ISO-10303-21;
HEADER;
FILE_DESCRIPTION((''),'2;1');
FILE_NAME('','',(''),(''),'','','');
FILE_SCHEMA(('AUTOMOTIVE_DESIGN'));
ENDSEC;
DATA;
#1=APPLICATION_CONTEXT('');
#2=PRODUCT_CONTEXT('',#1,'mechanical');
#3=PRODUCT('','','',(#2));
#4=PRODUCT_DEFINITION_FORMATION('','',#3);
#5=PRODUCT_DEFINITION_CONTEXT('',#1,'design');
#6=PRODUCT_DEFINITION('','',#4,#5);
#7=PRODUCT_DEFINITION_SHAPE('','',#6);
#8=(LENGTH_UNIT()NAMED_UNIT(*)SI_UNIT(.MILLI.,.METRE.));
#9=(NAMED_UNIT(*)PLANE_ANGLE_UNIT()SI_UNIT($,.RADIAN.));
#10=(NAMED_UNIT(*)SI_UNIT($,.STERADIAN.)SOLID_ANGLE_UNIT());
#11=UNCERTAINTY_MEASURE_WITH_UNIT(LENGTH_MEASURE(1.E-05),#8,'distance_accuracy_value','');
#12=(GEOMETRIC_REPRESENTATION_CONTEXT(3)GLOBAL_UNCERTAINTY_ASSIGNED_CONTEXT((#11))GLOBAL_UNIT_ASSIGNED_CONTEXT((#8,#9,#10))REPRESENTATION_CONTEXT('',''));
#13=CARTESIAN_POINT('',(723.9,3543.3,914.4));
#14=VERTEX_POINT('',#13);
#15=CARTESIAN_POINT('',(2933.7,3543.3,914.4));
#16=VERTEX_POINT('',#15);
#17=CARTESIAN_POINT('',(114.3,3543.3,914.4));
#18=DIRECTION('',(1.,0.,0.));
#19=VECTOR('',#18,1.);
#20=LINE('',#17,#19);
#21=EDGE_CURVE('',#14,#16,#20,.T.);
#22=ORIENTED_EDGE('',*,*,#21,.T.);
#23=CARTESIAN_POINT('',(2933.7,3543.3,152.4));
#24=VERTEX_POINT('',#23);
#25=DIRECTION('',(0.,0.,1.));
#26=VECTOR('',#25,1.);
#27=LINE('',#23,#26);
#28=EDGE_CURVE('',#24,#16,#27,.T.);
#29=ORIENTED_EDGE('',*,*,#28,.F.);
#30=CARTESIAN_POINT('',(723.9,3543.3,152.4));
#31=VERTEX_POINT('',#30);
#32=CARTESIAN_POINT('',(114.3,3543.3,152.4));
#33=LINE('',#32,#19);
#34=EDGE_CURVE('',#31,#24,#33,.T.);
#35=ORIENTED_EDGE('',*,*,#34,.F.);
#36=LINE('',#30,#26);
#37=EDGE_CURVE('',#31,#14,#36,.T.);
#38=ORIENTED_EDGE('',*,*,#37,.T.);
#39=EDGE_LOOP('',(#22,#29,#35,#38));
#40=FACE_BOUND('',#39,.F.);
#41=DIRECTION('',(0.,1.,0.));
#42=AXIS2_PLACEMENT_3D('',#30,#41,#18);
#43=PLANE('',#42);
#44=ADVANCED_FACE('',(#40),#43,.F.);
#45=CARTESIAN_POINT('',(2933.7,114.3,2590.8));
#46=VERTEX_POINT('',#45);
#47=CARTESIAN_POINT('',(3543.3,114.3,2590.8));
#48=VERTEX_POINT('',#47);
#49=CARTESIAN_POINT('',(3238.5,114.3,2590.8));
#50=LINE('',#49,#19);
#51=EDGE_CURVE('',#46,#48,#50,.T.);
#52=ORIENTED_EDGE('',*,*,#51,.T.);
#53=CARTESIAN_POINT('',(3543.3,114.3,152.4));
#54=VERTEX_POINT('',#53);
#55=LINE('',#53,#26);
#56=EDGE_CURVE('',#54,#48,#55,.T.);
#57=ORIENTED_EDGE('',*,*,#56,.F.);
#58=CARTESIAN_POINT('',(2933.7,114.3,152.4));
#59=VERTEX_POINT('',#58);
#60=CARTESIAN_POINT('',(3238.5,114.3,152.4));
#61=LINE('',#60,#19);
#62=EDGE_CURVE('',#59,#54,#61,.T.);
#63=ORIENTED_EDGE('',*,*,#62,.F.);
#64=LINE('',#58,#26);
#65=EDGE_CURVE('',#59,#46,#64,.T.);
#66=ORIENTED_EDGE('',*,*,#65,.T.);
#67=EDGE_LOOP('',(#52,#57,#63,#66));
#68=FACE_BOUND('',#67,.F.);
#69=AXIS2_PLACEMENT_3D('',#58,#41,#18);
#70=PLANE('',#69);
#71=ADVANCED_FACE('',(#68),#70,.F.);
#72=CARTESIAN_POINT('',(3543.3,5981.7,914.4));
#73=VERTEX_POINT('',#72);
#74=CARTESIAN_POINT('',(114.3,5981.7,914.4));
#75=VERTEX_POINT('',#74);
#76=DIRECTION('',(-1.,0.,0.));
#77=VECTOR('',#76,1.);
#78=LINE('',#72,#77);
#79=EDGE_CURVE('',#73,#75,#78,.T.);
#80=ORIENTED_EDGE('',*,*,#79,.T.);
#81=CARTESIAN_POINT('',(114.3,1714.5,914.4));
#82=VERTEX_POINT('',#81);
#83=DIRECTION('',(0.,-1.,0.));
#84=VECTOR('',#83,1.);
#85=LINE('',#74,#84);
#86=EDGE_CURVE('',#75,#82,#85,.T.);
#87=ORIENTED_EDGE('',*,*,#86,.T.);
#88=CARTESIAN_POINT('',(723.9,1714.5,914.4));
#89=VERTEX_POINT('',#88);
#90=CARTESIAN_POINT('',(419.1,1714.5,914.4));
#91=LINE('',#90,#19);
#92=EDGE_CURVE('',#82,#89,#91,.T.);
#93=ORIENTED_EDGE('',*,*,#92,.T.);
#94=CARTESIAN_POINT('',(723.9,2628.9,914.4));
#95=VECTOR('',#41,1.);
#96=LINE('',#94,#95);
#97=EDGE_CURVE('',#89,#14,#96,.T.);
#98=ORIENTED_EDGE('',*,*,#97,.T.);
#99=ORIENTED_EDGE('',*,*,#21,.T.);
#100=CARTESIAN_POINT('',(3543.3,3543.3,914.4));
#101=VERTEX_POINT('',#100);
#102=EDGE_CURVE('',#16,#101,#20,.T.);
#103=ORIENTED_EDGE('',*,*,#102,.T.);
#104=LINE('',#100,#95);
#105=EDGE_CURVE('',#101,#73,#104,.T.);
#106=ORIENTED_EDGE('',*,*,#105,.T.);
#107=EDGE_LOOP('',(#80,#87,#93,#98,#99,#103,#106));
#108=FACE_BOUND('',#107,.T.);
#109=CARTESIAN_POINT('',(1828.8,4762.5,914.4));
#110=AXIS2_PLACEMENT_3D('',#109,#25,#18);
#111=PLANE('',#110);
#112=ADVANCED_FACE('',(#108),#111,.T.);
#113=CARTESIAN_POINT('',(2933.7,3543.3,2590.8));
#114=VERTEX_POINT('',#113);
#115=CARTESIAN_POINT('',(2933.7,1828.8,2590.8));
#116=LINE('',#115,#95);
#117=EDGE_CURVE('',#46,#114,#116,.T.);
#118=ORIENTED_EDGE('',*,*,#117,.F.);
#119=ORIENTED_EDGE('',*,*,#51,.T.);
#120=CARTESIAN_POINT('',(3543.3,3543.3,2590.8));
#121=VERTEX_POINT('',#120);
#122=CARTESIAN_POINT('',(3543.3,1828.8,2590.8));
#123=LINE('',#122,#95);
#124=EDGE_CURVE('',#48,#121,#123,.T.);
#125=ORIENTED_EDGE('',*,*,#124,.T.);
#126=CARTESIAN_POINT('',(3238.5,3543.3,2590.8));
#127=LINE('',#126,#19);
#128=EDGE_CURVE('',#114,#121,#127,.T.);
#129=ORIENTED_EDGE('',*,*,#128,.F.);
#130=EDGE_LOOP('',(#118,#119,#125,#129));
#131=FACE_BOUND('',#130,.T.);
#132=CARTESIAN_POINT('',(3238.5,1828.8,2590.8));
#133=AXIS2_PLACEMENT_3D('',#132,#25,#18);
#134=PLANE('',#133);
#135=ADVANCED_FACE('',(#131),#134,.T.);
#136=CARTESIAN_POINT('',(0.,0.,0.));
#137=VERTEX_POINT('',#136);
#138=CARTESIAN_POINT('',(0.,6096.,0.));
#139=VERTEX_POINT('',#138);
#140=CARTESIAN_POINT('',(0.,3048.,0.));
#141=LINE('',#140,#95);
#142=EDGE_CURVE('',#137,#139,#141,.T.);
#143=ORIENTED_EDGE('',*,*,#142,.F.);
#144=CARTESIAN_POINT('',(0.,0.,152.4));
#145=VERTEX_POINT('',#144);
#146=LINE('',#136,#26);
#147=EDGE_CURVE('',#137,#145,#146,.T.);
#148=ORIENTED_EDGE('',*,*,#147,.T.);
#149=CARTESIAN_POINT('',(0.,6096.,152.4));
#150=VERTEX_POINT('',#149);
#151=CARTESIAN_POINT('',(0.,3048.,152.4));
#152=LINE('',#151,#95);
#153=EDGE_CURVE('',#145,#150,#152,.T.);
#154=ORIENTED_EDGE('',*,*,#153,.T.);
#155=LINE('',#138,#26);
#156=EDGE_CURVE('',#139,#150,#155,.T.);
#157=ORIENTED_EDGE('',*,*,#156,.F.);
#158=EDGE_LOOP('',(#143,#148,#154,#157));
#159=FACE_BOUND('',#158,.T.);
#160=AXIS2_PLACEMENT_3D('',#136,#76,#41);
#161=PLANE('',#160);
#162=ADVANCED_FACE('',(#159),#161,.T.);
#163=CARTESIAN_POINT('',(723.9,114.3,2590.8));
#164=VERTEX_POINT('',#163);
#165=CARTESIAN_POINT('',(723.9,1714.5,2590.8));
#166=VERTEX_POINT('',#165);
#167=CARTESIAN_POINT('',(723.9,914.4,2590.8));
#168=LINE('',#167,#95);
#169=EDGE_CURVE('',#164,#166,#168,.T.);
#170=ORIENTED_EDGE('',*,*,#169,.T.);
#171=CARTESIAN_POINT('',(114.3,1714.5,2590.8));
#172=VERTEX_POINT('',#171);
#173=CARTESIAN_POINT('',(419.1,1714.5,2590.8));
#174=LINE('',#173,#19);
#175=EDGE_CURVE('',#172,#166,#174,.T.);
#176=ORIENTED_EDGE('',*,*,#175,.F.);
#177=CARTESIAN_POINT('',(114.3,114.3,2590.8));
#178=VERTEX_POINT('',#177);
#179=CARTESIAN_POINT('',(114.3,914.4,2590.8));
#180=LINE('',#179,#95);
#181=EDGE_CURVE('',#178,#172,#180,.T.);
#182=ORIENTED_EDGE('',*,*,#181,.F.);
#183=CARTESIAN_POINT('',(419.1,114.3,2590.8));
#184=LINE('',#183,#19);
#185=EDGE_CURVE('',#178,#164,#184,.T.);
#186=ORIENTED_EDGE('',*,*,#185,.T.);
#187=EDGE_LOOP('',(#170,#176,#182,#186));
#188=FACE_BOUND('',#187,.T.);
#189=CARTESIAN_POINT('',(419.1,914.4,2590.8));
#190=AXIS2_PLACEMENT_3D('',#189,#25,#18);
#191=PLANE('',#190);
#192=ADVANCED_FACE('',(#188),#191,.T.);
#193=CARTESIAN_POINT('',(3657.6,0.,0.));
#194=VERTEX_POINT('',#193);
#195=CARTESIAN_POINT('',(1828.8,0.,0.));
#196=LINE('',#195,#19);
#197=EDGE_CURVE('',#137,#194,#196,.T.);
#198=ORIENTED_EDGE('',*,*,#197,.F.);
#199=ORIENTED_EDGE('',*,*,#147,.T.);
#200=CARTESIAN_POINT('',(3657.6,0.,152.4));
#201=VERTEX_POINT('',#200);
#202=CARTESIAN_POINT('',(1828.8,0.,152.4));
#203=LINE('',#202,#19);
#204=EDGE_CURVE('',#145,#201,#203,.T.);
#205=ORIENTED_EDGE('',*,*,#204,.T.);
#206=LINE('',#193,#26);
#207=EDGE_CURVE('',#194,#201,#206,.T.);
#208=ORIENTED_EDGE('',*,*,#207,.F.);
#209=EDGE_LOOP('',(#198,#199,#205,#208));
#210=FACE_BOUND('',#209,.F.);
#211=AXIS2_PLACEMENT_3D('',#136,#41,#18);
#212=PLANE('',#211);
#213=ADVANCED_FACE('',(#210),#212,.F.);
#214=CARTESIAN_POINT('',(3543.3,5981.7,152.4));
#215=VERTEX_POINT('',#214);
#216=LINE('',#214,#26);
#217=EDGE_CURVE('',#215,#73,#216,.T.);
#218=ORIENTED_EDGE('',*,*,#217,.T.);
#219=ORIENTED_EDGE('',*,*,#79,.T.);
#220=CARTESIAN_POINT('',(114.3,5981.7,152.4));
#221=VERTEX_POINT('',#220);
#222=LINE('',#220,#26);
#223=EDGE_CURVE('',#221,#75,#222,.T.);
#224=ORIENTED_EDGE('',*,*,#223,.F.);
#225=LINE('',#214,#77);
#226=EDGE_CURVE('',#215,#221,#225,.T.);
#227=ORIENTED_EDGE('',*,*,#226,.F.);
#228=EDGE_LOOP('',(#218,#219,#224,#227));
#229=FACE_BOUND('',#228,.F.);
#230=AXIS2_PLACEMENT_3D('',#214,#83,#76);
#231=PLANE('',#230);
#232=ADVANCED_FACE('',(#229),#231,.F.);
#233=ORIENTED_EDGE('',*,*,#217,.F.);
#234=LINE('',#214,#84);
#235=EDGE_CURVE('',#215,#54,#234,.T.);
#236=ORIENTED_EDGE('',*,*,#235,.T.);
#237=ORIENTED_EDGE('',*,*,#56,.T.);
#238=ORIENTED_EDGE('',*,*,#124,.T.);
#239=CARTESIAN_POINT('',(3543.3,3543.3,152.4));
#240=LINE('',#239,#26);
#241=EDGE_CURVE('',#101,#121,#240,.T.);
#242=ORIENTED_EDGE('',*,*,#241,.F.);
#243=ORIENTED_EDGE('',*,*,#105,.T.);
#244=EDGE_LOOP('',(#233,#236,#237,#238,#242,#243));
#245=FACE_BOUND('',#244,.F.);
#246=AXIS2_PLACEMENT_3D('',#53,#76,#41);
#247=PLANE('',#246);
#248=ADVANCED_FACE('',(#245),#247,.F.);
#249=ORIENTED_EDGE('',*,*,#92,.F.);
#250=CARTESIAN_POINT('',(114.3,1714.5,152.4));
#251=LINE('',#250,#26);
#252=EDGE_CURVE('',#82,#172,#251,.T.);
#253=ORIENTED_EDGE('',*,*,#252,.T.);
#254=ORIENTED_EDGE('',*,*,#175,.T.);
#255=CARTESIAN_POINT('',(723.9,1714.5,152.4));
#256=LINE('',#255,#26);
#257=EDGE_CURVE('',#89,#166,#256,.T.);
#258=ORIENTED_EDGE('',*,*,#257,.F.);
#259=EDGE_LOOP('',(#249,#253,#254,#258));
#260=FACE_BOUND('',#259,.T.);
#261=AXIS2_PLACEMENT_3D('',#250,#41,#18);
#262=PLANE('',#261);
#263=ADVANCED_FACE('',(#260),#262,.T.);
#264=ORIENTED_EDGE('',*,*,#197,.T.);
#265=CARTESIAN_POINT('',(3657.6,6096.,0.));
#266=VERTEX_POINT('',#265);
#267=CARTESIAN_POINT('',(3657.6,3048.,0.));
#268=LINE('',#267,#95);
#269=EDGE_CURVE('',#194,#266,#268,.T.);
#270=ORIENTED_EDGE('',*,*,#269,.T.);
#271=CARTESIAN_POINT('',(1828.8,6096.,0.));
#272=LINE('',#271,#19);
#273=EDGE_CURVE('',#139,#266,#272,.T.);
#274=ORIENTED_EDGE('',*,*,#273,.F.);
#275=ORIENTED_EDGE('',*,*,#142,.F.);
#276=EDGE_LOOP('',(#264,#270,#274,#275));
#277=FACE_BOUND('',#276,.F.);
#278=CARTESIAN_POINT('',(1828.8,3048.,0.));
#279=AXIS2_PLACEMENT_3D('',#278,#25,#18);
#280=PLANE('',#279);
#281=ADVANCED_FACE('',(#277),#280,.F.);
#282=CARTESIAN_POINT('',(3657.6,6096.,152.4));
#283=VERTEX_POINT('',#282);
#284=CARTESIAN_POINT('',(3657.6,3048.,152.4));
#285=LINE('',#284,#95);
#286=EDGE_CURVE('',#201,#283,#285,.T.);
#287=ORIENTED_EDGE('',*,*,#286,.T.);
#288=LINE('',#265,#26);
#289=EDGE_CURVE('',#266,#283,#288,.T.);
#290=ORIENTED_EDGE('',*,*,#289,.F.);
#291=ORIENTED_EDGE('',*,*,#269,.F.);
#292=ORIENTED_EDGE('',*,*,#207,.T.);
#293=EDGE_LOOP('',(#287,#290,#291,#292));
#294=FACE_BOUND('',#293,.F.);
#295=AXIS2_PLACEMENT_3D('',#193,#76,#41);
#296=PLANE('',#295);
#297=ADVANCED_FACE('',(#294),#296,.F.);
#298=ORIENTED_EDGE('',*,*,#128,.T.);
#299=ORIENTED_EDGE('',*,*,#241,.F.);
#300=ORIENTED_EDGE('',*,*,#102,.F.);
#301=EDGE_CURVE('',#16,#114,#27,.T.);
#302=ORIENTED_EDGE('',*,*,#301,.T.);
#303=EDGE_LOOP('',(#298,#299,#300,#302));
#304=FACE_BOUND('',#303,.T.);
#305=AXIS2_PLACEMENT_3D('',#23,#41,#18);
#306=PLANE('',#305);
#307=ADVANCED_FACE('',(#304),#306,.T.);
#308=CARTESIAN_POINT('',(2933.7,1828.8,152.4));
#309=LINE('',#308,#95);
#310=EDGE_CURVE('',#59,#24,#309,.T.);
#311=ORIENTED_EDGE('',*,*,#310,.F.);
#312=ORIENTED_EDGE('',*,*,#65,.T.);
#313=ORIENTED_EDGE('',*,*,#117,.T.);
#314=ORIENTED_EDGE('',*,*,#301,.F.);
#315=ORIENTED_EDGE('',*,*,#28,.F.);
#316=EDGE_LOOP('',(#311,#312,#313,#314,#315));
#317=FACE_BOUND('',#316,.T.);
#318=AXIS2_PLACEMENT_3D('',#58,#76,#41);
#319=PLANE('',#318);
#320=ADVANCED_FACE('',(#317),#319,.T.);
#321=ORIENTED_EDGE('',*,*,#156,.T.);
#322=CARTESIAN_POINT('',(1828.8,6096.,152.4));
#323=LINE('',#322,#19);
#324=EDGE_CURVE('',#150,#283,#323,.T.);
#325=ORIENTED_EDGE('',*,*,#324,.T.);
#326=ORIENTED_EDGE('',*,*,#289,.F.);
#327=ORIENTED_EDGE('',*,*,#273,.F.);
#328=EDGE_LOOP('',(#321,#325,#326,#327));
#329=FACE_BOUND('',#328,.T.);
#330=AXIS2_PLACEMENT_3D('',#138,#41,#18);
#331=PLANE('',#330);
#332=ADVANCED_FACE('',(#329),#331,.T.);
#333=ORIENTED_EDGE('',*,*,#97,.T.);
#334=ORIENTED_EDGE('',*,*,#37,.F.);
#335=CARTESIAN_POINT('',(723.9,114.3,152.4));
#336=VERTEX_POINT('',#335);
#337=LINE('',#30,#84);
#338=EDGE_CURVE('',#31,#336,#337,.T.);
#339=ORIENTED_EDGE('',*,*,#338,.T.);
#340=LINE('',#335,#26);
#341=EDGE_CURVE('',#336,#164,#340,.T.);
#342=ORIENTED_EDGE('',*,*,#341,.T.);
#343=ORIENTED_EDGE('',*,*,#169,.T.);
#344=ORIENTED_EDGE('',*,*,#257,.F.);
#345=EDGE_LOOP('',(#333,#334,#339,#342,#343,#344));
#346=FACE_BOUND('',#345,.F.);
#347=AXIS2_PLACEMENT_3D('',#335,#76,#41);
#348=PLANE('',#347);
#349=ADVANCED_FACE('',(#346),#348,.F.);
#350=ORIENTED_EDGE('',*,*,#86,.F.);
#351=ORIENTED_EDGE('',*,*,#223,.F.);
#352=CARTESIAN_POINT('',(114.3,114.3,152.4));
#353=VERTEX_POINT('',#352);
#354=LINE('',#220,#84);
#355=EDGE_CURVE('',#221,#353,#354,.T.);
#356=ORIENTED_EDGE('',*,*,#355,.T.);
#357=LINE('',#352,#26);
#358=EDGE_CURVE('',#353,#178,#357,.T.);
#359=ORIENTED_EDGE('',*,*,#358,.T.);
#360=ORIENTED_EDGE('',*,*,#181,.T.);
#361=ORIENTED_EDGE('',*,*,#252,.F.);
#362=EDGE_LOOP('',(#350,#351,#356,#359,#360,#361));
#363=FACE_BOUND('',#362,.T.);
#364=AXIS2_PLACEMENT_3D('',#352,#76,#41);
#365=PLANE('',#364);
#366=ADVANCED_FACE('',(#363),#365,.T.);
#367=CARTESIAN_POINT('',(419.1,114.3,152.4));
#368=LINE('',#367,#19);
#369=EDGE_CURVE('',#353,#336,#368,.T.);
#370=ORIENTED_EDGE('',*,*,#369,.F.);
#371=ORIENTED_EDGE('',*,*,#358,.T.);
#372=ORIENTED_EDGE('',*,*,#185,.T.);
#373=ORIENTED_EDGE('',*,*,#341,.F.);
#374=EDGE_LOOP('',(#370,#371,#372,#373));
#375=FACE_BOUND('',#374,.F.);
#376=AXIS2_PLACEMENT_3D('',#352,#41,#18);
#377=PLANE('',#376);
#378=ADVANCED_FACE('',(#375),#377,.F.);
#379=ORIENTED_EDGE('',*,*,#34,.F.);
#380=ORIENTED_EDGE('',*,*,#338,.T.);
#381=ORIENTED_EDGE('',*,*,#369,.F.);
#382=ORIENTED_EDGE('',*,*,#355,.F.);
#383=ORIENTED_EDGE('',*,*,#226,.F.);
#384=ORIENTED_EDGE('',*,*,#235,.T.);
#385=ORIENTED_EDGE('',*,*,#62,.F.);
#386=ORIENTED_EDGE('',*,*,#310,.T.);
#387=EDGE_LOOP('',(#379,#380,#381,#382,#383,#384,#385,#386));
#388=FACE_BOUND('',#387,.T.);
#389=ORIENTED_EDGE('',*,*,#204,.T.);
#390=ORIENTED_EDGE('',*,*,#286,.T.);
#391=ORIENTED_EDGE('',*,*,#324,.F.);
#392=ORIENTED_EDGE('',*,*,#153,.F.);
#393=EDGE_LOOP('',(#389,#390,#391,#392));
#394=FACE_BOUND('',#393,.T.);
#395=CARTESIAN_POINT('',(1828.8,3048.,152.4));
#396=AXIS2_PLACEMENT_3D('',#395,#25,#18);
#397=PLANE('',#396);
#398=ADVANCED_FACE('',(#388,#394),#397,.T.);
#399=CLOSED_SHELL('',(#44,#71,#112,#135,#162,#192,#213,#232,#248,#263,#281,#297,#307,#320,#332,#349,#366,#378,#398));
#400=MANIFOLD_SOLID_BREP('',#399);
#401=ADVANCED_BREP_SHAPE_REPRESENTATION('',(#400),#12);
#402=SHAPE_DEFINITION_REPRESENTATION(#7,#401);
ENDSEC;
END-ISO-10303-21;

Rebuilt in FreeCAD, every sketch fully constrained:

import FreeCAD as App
import Part
import Sketcher
from FreeCAD import Vector
Q = App.Units.Quantity


def add_polygon(sketch, points):
    """Adds a closed chain of lines whose ends are joined by coincident constraints."""
    first, n = sketch.GeometryCount, len(points)
    for a, b in zip(points, points[1:] + points[:1]):
        sketch.addGeometry(Part.LineSegment(App.Vector(*a, 0), App.Vector(*b, 0)), False)
    for i in range(n):
        sketch.addConstraint(Sketcher.Constraint("Coincident", first + i, 2, first + (i + 1) % n, 1))

doc = App.newDocument("Part")
params = doc.addObject("Spreadsheet::Sheet", "Params")
for row, (alias, value) in enumerate([
    ("sketch1_width", "144 in"),
    ("sketch1_height", "240 in"),
    ("pad1_length", "6 in"),
    ("sketch2_width", "135 in"),
    ("sketch2_width2", "24 in"),
    ("sketch2_height", "168 in"),
    ("sketch2_height2", "72 in"),
    ("pad2_length", "30 in"),
    ("sketch3_width", "24 in"),
    ("sketch3_height", "63 in"),
    ("sketch3_height2", "135 in"),
    ("pad3_length", "96 in"),
], start=1):
    params.set(f"A{row}", alias)
    params.set(f"B{row}", "=" + value)
    params.setAlias(f"B{row}", alias)

body = doc.addObject("PartDesign::Body", "Body")

# Sketch on XY plane
sketch1 = body.newObject("Sketcher::SketchObject", "Sketch")
sketch1.AttachmentSupport = (doc.getObject("XY_Plane"), [""])
sketch1.MapMode = "FlatFace"
add_polygon(sketch1, [(0, 6096), (0, 0), (3657.6, 0), (3657.6, 6096)])  # lines 0-3
sketch1.addConstraint([
    Sketcher.Constraint("Vertical", 0),
    Sketcher.Constraint("Horizontal", 1),
    Sketcher.Constraint("Vertical", 2),
    Sketcher.Constraint("Horizontal", 3),
    Sketcher.Constraint("Coincident", 0, 2, -1, 1),
    Sketcher.Constraint("DistanceX", 1, 1, 1, 2, Q("144 in")),
    Sketcher.Constraint("DistanceY", 0, 2, 0, 1, Q("240 in")),
])
sketch1.setExpression("Constraints[9]", "Params.sketch1_width")
sketch1.setExpression("Constraints[10]", "Params.sketch1_height")
pad1 = body.newObject("PartDesign::Pad", "Pad")
pad1.Profile = sketch1
pad1.setExpression("Length", "Params.pad1_length")

# Sketch on XY plane
sketch2 = body.newObject("Sketcher::SketchObject", "Sketch001")
sketch2.AttachmentSupport = (doc.getObject("XY_Plane"), [""])
sketch2.MapMode = "FlatFace"
sketch2.AttachmentOffset = App.Placement(Vector(0, 0, 6 * 25.4), App.Rotation())
add_polygon(sketch2, [(3543.3, 5981.7), (114.3, 5981.7), (114.3, 1714.5), (723.9, 1714.5), (723.9, 3543.3), (3543.3, 3543.3)])  # lines 0-5
sketch2.addConstraint([
    Sketcher.Constraint("Horizontal", 0),
    Sketcher.Constraint("Vertical", 1),
    Sketcher.Constraint("Horizontal", 2),
    Sketcher.Constraint("Vertical", 3),
    Sketcher.Constraint("Horizontal", 4),
    Sketcher.Constraint("Vertical", 5),
    Sketcher.Constraint("DistanceX", 0, 2, 0, 1, Q("135 in")),
    Sketcher.Constraint("DistanceX", 2, 1, 2, 2, Q("24 in")),
    Sketcher.Constraint("DistanceY", 1, 2, 1, 1, Q("168 in")),
    Sketcher.Constraint("DistanceY", 3, 1, 3, 2, Q("72 in")),
    Sketcher.Constraint("DistanceX", -1, 1, 0, 2, Q("4.5 in")),
    Sketcher.Constraint("DistanceY", -1, 1, 0, 2, Q("235.5 in")),
])
sketch2.setExpression("Constraints[12]", "Params.sketch2_width")
sketch2.setExpression("Constraints[13]", "Params.sketch2_width2")
sketch2.setExpression("Constraints[14]", "Params.sketch2_height")
sketch2.setExpression("Constraints[15]", "Params.sketch2_height2")
pad2 = body.newObject("PartDesign::Pad", "Pad001")
pad2.Profile = sketch2
pad2.setExpression("Length", "Params.pad2_length")

# Sketch on XY plane
sketch3 = body.newObject("Sketcher::SketchObject", "Sketch002")
sketch3.AttachmentSupport = (doc.getObject("XY_Plane"), [""])
sketch3.MapMode = "FlatFace"
sketch3.AttachmentOffset = App.Placement(Vector(0, 0, 6 * 25.4), App.Rotation())
add_polygon(sketch3, [(114.3, 1714.5), (114.3, 114.3), (723.9, 114.3), (723.9, 1714.5)])  # lines 0-3
add_polygon(sketch3, [(2933.7, 3543.3), (2933.7, 114.3), (3543.3, 114.3), (3543.3, 3543.3)])  # lines 4-7
sketch3.addConstraint([
    Sketcher.Constraint("Vertical", 0),
    Sketcher.Constraint("Horizontal", 1),
    Sketcher.Constraint("Vertical", 2),
    Sketcher.Constraint("Horizontal", 3),
    Sketcher.Constraint("Vertical", 4),
    Sketcher.Constraint("Horizontal", 5),
    Sketcher.Constraint("Vertical", 6),
    Sketcher.Constraint("Horizontal", 7),
    Sketcher.Constraint("Horizontal", 1, 2, 4, 2),
    Sketcher.Constraint("Equal", 3, 5),
    Sketcher.Constraint("DistanceX", 1, 1, 1, 2, Q("24 in")),
    Sketcher.Constraint("DistanceY", 0, 2, 0, 1, Q("63 in")),
    Sketcher.Constraint("DistanceY", 4, 2, 4, 1, Q("135 in")),
    Sketcher.Constraint("DistanceX", 1, 2, 4, 2, Q("87 in")),
    Sketcher.Constraint("DistanceX", -1, 1, 0, 2, Q("4.5 in")),
    Sketcher.Constraint("DistanceY", -1, 1, 0, 2, Q("4.5 in")),
])
sketch3.setExpression("Constraints[18]", "Params.sketch3_width")
sketch3.setExpression("Constraints[19]", "Params.sketch3_height")
sketch3.setExpression("Constraints[20]", "Params.sketch3_height2")
pad3 = body.newObject("PartDesign::Pad", "Pad002")
pad3.Profile = sketch3
pad3.setExpression("Length", "Params.pad3_length")

doc.recompute()
